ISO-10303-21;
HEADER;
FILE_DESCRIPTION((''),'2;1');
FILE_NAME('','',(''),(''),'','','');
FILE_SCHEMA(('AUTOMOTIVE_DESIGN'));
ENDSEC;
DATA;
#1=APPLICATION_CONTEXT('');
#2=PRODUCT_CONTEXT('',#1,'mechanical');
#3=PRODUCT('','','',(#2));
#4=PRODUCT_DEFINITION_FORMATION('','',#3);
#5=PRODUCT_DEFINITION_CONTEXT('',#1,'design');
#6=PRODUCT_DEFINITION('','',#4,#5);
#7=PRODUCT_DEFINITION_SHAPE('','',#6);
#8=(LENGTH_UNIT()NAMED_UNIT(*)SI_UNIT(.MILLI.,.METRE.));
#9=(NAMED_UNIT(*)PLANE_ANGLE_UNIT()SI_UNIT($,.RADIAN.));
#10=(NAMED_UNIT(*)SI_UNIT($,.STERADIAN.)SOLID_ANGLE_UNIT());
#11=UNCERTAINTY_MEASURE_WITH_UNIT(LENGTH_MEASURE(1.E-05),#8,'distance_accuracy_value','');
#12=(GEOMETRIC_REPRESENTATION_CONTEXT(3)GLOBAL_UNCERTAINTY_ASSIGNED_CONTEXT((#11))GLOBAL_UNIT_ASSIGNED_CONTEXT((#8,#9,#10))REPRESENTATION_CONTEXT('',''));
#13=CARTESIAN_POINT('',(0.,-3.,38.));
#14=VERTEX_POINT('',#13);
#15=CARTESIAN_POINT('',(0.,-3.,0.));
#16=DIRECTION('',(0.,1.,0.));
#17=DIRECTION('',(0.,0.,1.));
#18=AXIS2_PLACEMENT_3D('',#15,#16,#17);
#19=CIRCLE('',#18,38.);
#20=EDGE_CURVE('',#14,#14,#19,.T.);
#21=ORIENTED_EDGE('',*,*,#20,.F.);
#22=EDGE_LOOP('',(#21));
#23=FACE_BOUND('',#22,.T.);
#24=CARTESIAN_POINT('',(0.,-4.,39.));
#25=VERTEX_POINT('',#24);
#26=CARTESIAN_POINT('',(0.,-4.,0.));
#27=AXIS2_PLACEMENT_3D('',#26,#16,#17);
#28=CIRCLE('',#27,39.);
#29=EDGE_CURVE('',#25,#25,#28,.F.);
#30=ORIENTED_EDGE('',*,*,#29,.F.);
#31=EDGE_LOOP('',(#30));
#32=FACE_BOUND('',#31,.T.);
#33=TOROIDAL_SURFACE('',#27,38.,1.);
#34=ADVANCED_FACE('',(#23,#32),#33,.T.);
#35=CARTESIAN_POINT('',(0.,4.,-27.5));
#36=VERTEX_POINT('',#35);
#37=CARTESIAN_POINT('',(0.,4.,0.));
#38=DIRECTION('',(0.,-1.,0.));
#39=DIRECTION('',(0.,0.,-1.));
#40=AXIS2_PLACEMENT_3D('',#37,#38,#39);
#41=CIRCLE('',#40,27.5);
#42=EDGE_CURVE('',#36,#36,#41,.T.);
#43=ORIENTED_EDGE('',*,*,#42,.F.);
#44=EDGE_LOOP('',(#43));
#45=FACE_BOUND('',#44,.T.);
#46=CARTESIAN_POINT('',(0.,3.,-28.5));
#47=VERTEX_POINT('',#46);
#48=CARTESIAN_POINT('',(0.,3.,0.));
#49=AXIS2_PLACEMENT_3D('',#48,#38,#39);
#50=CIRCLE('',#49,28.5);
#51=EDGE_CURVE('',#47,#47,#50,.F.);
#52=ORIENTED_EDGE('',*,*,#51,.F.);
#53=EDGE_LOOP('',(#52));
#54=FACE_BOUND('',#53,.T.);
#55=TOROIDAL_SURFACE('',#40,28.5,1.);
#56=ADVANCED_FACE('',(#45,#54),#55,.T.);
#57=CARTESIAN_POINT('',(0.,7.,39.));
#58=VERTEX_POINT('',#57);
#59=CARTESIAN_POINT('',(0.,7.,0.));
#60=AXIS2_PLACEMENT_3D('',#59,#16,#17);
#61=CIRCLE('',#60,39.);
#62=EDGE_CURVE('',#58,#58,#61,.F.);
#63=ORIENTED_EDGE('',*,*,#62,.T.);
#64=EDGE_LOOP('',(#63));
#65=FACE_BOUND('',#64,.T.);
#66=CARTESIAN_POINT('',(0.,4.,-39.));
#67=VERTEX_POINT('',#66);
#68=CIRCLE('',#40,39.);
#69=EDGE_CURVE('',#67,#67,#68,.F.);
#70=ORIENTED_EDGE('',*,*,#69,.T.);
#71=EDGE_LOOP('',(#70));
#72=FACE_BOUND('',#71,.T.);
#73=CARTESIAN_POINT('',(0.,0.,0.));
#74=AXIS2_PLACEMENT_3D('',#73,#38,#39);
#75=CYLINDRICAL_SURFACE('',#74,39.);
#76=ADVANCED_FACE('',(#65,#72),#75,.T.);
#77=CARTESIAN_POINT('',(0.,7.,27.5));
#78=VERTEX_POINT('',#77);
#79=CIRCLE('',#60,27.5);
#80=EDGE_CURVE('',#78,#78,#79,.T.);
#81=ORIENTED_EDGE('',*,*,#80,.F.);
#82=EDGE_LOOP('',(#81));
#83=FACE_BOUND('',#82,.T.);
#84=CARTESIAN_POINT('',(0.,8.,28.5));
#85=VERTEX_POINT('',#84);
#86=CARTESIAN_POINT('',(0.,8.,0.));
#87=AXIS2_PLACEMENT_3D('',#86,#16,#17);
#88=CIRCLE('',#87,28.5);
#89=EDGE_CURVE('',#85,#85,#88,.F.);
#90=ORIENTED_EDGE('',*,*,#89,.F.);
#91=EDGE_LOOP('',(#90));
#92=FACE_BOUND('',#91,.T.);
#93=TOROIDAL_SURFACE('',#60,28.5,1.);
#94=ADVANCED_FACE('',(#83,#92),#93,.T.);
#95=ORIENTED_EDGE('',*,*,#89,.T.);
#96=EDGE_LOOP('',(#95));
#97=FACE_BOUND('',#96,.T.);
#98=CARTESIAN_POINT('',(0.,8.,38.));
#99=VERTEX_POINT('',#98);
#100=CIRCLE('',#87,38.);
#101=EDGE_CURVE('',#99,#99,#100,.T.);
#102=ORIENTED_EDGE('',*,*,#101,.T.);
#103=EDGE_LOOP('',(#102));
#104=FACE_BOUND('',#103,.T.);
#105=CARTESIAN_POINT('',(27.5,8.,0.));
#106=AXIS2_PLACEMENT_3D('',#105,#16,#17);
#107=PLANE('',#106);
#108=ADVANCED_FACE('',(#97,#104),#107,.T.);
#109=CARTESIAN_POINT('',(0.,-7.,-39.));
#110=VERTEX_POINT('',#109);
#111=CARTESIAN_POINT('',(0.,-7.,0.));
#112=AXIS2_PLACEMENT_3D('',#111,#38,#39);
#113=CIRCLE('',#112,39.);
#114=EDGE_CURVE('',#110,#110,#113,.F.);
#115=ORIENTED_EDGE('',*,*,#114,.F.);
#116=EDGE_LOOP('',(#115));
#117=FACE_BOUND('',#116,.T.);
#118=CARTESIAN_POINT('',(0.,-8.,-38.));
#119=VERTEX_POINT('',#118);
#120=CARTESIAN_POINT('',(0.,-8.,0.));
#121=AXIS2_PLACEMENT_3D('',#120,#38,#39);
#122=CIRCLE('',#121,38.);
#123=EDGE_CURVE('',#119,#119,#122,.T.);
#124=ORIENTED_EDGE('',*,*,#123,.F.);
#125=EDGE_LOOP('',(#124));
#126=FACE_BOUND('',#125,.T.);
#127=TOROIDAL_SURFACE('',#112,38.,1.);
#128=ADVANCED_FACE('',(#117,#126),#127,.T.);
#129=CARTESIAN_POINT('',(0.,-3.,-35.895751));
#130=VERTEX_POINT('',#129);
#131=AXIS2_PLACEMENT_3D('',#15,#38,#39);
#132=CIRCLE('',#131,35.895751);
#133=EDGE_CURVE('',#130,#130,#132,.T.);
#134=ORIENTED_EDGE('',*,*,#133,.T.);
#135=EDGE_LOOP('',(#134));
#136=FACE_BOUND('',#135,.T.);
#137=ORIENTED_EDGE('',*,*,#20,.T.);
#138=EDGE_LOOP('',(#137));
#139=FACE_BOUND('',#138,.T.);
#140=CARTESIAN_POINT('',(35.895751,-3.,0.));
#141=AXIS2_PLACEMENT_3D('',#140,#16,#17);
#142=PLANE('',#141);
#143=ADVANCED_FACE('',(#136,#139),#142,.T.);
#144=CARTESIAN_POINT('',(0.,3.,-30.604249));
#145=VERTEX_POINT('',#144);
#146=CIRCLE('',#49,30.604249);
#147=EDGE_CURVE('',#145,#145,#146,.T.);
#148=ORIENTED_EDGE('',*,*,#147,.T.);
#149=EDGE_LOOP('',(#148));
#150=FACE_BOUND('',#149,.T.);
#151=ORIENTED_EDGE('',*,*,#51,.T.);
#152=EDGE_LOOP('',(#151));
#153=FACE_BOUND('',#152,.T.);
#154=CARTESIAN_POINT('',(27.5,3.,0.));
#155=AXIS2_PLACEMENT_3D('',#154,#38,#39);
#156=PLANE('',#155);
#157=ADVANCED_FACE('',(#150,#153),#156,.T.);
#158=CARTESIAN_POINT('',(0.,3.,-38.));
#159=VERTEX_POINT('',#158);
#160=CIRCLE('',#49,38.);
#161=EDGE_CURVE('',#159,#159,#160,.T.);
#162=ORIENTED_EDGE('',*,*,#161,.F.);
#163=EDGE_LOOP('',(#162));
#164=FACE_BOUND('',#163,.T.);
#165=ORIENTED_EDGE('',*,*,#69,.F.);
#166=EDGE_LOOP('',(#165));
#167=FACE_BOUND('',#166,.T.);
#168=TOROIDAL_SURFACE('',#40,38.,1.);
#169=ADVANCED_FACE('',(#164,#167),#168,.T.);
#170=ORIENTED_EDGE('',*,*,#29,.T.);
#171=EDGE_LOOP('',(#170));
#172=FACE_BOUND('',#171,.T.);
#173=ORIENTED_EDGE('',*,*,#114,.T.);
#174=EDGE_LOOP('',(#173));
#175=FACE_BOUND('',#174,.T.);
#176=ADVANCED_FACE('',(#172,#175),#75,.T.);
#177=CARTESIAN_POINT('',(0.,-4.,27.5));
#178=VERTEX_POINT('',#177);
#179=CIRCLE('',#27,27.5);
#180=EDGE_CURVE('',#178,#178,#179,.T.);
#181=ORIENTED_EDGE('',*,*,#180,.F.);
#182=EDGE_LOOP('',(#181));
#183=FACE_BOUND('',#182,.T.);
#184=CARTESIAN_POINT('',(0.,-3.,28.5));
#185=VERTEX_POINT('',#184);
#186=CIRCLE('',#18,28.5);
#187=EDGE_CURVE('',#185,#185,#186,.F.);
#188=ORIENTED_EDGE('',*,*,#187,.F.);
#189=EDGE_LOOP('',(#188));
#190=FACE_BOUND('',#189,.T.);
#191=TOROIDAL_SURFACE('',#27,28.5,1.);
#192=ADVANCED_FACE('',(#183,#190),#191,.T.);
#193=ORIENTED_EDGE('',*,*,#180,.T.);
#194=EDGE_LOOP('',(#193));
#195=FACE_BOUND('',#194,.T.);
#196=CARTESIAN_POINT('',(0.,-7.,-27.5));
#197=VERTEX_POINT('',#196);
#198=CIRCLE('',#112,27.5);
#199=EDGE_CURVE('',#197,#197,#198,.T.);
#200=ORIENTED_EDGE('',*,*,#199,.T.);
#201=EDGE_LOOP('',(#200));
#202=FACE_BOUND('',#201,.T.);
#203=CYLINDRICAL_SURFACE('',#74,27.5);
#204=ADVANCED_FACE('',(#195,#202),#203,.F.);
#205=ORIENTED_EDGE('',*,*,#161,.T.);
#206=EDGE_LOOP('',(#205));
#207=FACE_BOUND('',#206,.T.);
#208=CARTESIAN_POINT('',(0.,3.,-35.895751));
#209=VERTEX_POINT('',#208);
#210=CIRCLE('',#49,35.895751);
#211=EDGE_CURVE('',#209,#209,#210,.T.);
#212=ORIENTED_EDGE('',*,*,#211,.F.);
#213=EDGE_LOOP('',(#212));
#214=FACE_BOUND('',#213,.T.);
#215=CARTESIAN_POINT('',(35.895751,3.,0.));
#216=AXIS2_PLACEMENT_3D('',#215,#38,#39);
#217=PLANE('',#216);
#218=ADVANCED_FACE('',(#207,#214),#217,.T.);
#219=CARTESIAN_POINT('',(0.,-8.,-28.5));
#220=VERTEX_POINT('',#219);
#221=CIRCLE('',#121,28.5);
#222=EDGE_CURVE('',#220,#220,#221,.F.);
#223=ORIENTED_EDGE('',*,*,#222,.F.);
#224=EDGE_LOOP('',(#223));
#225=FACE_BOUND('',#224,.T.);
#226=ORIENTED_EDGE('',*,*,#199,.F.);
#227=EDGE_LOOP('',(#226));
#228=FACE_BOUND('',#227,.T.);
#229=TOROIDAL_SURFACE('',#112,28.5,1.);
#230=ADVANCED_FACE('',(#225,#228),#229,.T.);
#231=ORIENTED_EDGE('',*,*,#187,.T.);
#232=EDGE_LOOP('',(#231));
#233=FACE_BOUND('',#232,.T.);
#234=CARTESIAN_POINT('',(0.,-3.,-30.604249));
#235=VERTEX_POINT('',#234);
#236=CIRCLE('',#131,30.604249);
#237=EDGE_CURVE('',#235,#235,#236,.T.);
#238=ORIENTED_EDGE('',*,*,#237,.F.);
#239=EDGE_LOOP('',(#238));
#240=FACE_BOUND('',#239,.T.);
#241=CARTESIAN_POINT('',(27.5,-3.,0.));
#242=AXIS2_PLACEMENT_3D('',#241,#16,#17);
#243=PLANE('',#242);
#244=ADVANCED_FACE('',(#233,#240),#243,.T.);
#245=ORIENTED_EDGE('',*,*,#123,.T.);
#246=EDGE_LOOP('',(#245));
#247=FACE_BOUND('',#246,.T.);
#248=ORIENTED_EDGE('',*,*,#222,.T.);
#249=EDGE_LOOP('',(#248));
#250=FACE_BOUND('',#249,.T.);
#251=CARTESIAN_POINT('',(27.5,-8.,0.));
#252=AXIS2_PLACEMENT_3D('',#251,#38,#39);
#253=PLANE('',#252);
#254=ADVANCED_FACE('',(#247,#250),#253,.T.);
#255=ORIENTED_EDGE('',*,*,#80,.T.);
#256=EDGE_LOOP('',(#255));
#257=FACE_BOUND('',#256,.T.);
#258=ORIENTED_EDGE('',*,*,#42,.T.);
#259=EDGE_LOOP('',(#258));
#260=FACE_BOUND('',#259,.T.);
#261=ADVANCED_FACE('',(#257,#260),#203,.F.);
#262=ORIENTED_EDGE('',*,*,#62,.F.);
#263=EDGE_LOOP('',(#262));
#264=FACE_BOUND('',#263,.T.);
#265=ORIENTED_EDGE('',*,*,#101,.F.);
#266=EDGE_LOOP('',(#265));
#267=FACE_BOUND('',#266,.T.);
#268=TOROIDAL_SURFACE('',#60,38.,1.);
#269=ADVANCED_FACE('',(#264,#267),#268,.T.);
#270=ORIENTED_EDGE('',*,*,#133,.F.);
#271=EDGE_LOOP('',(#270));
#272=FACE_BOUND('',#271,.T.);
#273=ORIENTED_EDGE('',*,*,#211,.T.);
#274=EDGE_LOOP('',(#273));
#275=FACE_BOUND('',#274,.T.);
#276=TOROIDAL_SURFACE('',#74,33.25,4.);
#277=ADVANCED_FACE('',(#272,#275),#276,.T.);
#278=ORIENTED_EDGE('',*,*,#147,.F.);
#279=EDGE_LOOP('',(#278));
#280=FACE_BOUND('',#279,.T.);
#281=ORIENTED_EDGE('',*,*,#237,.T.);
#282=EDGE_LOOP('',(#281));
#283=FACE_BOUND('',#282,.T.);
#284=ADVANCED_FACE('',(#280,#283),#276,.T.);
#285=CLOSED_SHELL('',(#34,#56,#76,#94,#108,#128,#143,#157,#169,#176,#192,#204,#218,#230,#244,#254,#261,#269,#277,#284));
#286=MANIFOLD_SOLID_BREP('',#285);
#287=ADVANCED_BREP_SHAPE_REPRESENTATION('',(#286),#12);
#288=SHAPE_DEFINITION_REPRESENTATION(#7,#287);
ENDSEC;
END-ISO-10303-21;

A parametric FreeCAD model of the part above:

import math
import FreeCAD as App
import Part
import Sketcher


def edges_at(feature, points):
    """Names of the edges that pass closest to the given points."""
    edges = feature.Shape.Edges
    near = lambda p: min(range(len(edges)), key=lambda i: edges[i].distToShape(Part.Vertex(*p))[0])
    return sorted({f"Edge{near(p) + 1}" for p in points})

doc = App.newDocument("Part")
body = doc.addObject("PartDesign::Body", "Body")

sketch1 = body.newObject("Sketcher::SketchObject", "Sketch")
sketch1.AttachmentSupport = (doc.getObject("XY_Plane"), [""])
sketch1.MapMode = "FlatFace"
sketch1.addGeometry([
    Part.LineSegment(App.Vector(30.6, -3, 0), App.Vector(27.5, -3, 0)),
    Part.LineSegment(App.Vector(27.5, -3, 0), App.Vector(27.5, -8, 0)),
    Part.LineSegment(App.Vector(27.5, -8, 0), App.Vector(39, -8, 0)),
    Part.LineSegment(App.Vector(39, -8, 0), App.Vector(39, -3, 0)),
    Part.LineSegment(App.Vector(39, -3, 0), App.Vector(35.9, -3, 0)),
    Part.ArcOfCircle(Part.Circle(App.Vector(33.2, 0, 0), App.Vector(0, 0, 1), 4), math.radians(-49), math.radians(49)),
    Part.LineSegment(App.Vector(35.9, 3, 0), App.Vector(39, 3, 0)),
    Part.LineSegment(App.Vector(39, 3, 0), App.Vector(39, 8, 0)),
    Part.LineSegment(App.Vector(39, 8, 0), App.Vector(27.5, 8, 0)),
    Part.LineSegment(App.Vector(27.5, 8, 0), App.Vector(27.5, 3, 0)),
    Part.LineSegment(App.Vector(27.5, 3, 0), App.Vector(30.6, 3, 0)),
    Part.ArcOfCircle(Part.Circle(App.Vector(33.2, 0, 0), App.Vector(0, 0, 1), 4), math.radians(131), math.radians(229)),
], False)
sketch1.addConstraint([
    Sketcher.Constraint("Coincident", 0, 2, 1, 1),
    Sketcher.Constraint("Coincident", 1, 2, 2, 1),
    Sketcher.Constraint("Coincident", 2, 2, 3, 1),
    Sketcher.Constraint("Coincident", 3, 2, 4, 1),
    Sketcher.Constraint("Coincident", 4, 2, 5, 1),
    Sketcher.Constraint("Coincident", 5, 2, 6, 1),
    Sketcher.Constraint("Coincident", 6, 2, 7, 1),
    Sketcher.Constraint("Coincident", 7, 2, 8, 1),
    Sketcher.Constraint("Coincident", 8, 2, 9, 1),
    Sketcher.Constraint("Coincident", 9, 2, 10, 1),
    Sketcher.Constraint("Coincident", 10, 2, 11, 1),
    Sketcher.Constraint("Coincident", 11, 2, 0, 1),
    Sketcher.Constraint("Horizontal", 0),
    Sketcher.Constraint("Vertical", 1),
    Sketcher.Constraint("Horizontal", 2),
    Sketcher.Constraint("Vertical", 3),
    Sketcher.Constraint("Horizontal", 4),
    Sketcher.Constraint("Horizontal", 6),
    Sketcher.Constraint("Vertical", 7),
    Sketcher.Constraint("Horizontal", 8),
    Sketcher.Constraint("Vertical", 9),
    Sketcher.Constraint("Horizontal", 10),
    Sketcher.Constraint("Coincident", 11, 3, 5, 3),
    Sketcher.Constraint("Equal", 5, 11),
    Sketcher.Constraint("Symmetric", 4, 2, 5, 2, -1),
    Sketcher.Constraint("Symmetric", 2, 2, 7, 2, -1),
    Sketcher.Constraint("Symmetric", 0, 2, 9, 2, -1),
    Sketcher.Constraint("Horizontal", 0, 2, 3, 2),
    Sketcher.Constraint("Equal", 0, 4),
    Sketcher.Constraint("Radius", 5, 4.0),
    Sketcher.Constraint("DistanceY", 1, 2, 1, 1, 5.0),
    Sketcher.Constraint("DistanceX", 2, 1, 2, 2, 11.5),
    Sketcher.Constraint("DistanceY", 0, 2, -1, 1, 3.0),
    Sketcher.Constraint("DistanceX", -1, 1, 2, 2, 39.0),
])
revolution = body.newObject("PartDesign::Revolution", "Revolution")
revolution.Profile = sketch1
revolution.ReferenceAxis = (sketch1, ["V_Axis"])
revolution.Angle = 360
doc.recompute()

fillet = body.newObject("PartDesign::Fillet", "Fillet")
fillet.Base = (revolution, edges_at(revolution, [
    (-27.5, -3, 0),
    (-27.5, 3, 0),
    (-27.5, 8, 0),
    (-39, 8, 0),
    (-39, 3, 0),
    (-39, -3, 0),
    (-39, -8, 0),
    (-27.5, -8, 0),
]))
fillet.Radius = 1

doc.recompute()
